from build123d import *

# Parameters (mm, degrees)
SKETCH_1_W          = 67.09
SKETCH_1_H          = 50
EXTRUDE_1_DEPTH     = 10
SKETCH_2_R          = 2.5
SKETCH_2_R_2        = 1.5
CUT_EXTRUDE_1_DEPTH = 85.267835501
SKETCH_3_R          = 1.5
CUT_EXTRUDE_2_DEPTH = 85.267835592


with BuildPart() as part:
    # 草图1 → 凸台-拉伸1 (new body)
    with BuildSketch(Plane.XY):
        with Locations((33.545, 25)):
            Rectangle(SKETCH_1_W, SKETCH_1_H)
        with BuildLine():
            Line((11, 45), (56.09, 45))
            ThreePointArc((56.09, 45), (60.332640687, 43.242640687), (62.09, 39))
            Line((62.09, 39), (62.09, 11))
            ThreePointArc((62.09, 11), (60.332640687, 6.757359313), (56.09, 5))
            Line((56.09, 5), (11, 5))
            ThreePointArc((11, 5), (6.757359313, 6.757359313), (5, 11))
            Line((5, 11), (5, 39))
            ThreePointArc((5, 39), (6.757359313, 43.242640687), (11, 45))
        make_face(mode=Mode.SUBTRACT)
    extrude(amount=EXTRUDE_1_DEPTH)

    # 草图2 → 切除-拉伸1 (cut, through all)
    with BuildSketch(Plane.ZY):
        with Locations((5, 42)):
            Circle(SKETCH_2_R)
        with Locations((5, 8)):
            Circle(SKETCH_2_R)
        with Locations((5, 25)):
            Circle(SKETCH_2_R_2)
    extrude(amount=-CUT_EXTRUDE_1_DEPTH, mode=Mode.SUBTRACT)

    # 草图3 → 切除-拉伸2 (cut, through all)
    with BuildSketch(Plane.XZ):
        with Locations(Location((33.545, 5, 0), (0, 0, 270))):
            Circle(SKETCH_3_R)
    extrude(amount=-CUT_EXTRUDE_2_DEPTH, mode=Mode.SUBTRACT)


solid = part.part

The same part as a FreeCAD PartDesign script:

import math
import FreeCAD as App
import Part
import Sketcher

V = App.Vector
Q = App.Units.Quantity

doc = App.newDocument("Part")
body = doc.addObject("PartDesign::Body", "Body")

sketch1 = body.newObject("Sketcher::SketchObject", "Sketch")
sketch1.AttachmentSupport = (doc.getObject("XY_Plane"), [""])
sketch1.MapMode = "FlatFace"
sketch1.addGeometry(Part.LineSegment(V(0, 50, 0), V(0, 0, 0)), False)
sketch1.addGeometry(Part.LineSegment(V(0, 0, 0), V(67, 0, 0)), False)
sketch1.addGeometry(Part.LineSegment(V(67, 0, 0), V(67, 50, 0)), False)
sketch1.addGeometry(Part.LineSegment(V(67, 50, 0), V(0, 50, 0)), False)
sketch1.addGeometry(Part.ArcOfCircle(Part.Circle(V(11, 39, 0), V(0, 0, 1), 6), math.radians(90), math.radians(180)), False)
sketch1.addGeometry(Part.LineSegment(V(11, 45, 0), V(56, 45, 0)), False)
sketch1.addGeometry(Part.ArcOfCircle(Part.Circle(V(56, 39, 0), V(0, 0, 1), 6), math.radians(0), math.radians(90)), False)
sketch1.addGeometry(Part.LineSegment(V(62, 39, 0), V(62, 11, 0)), False)
sketch1.addGeometry(Part.ArcOfCircle(Part.Circle(V(56, 11, 0), V(0, 0, 1), 6), math.radians(-90), math.radians(0)), False)
sketch1.addGeometry(Part.LineSegment(V(56, 5, 0), V(11, 5, 0)), False)
sketch1.addGeometry(Part.ArcOfCircle(Part.Circle(V(11, 11, 0), V(0, 0, 1), 6), math.radians(180), math.radians(270)), False)
sketch1.addGeometry(Part.LineSegment(V(5, 11, 0), V(5, 39, 0)), False)
sketch1.addConstraint(Sketcher.Constraint("Coincident", 0, 2, 1, 1))
sketch1.addConstraint(Sketcher.Constraint("Coincident", 1, 2, 2, 1))
sketch1.addConstraint(Sketcher.Constraint("Coincident", 2, 2, 3, 1))
sketch1.addConstraint(Sketcher.Constraint("Coincident", 3, 2, 0, 1))
sketch1.addConstraint(Sketcher.Constraint("Tangent", 4, 1, 5, 1))
sketch1.addConstraint(Sketcher.Constraint("Tangent", 5, 2, 6, 2))
sketch1.addConstraint(Sketcher.Constraint("Tangent", 6, 1, 7, 1))
sketch1.addConstraint(Sketcher.Constraint("Tangent", 7, 2, 8, 2))
sketch1.addConstraint(Sketcher.Constraint("Tangent", 8, 1, 9, 1))
sketch1.addConstraint(Sketcher.Constraint("Tangent", 9, 2, 10, 2))
sketch1.addConstraint(Sketcher.Constraint("Tangent", 10, 1, 11, 1))
sketch1.addConstraint(Sketcher.Constraint("Tangent", 11, 2, 4, 2))
sketch1.addConstraint(Sketcher.Constraint("Vertical", 0))
sketch1.addConstraint(Sketcher.Constraint("Horizontal", 1))
sketch1.addConstraint(Sketcher.Constraint("Vertical", 2))
sketch1.addConstraint(Sketcher.Constraint("Horizontal", 3))
sketch1.addConstraint(Sketcher.Constraint("Horizontal", 5))
sketch1.addConstraint(Sketcher.Constraint("Vertical", 7))
sketch1.addConstraint(Sketcher.Constraint("Horizontal", 9))
sketch1.addConstraint(Sketcher.Constraint("Vertical", 11))
sketch1.addConstraint(Sketcher.Constraint("Coincident", 0, 2, -1, 1))
sketch1.addConstraint(Sketcher.Constraint("Equal", 4, 6))
sketch1.addConstraint(Sketcher.Constraint("Equal", 6, 8))
sketch1.addConstraint(Sketcher.Constraint("Equal", 8, 10))
sketch1.addConstraint(Sketcher.Constraint("Radius", 4, Q("6 mm")))
sketch1.addConstraint(Sketcher.Constraint("DistanceY", 0, 2, 0, 1, Q("50 mm")))
sketch1.addConstraint(Sketcher.Constraint("DistanceY", 7, 2, 7, 1, Q("28 mm")))
sketch1.addConstraint(Sketcher.Constraint("DistanceX", -1, 1, 4, 3, Q("11 mm")))
sketch1.addConstraint(Sketcher.Constraint("DistanceY", -1, 1, 4, 3, Q("39 mm")))
sketch1.addConstraint(Sketcher.Constraint("DistanceX", 8, 3, 1, 2, Q("11 mm")))
sketch1.addConstraint(Sketcher.Constraint("DistanceX", 1, 1, 1, 2, Q("67.09 mm")))
pad1 = body.newObject("PartDesign::Pad", "Pad")
pad1.Profile = sketch1
pad1.Length = 10

sketch2 = body.newObject("Sketcher::SketchObject", "Sketch001")
sketch2.AttachmentSupport = (doc.getObject("YZ_Plane"), [""])
sketch2.MapMode = "FlatFace"
sketch2.addGeometry(Part.Circle(V(42, 5, 0), V(0, 0, 1), 2.5), False)
sketch2.addGeometry(Part.Circle(V(8, 5, 0), V(0, 0, 1), 2.5), False)
sketch2.addGeometry(Part.Circle(V(25, 5, 0), V(0, 0, 1), 1.5), False)
sketch2.addConstraint(Sketcher.Constraint("Equal", 0, 1))
sketch2.addConstraint(Sketcher.Constraint("Horizontal", 0, 3, 1, 3))
sketch2.addConstraint(Sketcher.Constraint("Horizontal", 1, 3, 2, 3))
sketch2.addConstraint(Sketcher.Constraint("Diameter", 0, Q("5 mm")))
sketch2.addConstraint(Sketcher.Constraint("Diameter", 2, Q("3 mm")))
sketch2.addConstraint(Sketcher.Constraint("DistanceX", -1, 1, 0, 3, Q("42 mm")))
sketch2.addConstraint(Sketcher.Constraint("DistanceY", -1, 1, 0, 3, Q("5 mm")))
sketch2.addConstraint(Sketcher.Constraint("DistanceX", -1, 1, 1, 3, Q("8 mm")))
sketch2.addConstraint(Sketcher.Constraint("DistanceX", -1, 1, 2, 3, Q("25 mm")))
pocket1 = body.newObject("PartDesign::Pocket", "Pocket")
pocket1.Profile = sketch2
pocket1.Type = "ThroughAll"
pocket1.Reversed = True

sketch3 = body.newObject("Sketcher::SketchObject", "Sketch002")
sketch3.AttachmentSupport = (doc.getObject("XZ_Plane"), [""])
sketch3.MapMode = "FlatFace"
sketch3.addGeometry(Part.Circle(V(33.5, 5, 0), V(0, 0, 1), 1.5), False)
sketch3.addConstraint(Sketcher.Constraint("Diameter", 0, Q("3 mm")))
sketch3.addConstraint(Sketcher.Constraint("DistanceY", -1, 1, 0, 3, Q("5 mm")))
sketch3.addConstraint(Sketcher.Constraint("DistanceX", -1, 1, 0, 3, Q("33.545 mm")))
pocket2 = body.newObject("PartDesign::Pocket", "Pocket001")
pocket2.Profile = sketch3
pocket2.Type = "ThroughAll"

doc.recompute()
